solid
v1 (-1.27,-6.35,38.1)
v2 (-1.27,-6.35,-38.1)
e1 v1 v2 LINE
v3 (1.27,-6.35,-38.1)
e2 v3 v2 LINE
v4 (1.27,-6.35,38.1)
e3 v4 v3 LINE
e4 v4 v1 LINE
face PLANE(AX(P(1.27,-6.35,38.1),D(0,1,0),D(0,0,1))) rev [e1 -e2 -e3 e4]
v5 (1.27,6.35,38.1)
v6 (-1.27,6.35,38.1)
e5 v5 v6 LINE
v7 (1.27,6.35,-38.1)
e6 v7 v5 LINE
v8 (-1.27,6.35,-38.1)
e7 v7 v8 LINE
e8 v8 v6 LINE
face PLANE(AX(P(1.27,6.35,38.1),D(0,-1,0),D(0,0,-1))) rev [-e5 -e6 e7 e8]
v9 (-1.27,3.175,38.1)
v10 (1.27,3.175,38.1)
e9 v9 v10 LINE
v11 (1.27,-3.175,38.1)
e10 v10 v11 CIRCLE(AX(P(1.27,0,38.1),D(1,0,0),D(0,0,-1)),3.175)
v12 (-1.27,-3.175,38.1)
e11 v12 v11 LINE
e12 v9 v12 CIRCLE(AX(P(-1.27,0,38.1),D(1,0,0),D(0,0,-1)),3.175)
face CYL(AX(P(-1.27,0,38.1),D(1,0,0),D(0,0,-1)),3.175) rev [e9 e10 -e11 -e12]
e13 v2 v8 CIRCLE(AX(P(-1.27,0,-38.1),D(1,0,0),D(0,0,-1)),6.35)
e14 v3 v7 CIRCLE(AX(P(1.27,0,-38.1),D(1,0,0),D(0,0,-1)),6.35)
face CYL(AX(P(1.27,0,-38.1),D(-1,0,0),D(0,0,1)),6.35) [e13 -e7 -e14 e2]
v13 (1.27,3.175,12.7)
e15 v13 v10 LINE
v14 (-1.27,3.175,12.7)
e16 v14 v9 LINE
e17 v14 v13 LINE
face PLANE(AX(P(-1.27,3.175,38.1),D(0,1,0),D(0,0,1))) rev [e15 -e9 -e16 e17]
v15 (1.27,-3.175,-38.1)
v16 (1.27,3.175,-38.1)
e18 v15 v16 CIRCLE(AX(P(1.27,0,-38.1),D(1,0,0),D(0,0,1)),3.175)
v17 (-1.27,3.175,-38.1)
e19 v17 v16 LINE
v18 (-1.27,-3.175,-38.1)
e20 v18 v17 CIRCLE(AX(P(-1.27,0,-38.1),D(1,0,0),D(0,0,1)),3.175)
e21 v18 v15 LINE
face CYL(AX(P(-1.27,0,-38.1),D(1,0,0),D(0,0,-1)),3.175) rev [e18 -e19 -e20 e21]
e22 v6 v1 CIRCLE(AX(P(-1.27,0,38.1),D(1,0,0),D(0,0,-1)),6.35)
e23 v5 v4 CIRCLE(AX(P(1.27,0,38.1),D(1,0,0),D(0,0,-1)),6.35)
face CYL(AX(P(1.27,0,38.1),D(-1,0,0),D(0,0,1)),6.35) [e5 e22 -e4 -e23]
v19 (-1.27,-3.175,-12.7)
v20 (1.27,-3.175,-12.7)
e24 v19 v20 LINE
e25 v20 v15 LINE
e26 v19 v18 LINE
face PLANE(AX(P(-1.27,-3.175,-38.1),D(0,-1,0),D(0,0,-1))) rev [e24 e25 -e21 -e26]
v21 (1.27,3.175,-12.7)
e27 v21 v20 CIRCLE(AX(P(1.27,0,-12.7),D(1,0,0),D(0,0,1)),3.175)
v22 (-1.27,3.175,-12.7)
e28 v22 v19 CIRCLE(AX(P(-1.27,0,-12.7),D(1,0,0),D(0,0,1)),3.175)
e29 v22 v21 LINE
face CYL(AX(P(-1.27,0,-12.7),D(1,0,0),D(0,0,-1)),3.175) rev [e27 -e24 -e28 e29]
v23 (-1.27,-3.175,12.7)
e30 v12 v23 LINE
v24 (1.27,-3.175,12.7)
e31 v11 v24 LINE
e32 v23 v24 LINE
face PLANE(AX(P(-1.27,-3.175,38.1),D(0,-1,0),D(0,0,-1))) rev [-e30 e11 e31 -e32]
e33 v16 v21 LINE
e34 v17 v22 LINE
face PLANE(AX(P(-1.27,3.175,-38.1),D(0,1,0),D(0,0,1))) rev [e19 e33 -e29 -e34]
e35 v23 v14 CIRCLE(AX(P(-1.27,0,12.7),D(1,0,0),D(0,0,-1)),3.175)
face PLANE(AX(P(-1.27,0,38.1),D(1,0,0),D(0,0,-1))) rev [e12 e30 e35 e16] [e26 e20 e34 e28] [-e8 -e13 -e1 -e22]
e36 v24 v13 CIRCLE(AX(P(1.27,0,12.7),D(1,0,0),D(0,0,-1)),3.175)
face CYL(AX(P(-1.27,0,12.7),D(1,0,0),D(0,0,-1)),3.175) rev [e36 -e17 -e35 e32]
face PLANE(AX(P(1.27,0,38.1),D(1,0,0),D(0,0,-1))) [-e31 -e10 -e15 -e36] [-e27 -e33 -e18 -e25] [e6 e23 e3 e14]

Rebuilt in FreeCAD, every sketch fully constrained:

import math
import FreeCAD as App
import Part
import Sketcher
from FreeCAD import Vector
Q = App.Units.Quantity

doc = App.newDocument("Part")
params = doc.addObject("Spreadsheet::Sheet", "Params")
for row, (alias, value) in enumerate([
    ("sketch1_height", "3 in"),
    ("sketch1_radius", "0.25 in"),
    ("pad1_length", "0.1 in"),
    ("sketch2_height", "1 in"),
    ("sketch2_radius", "0.125 in"),
], start=1):
    params.set(f"A{row}", alias)
    params.set(f"B{row}", "=" + value)
    params.setAlias(f"B{row}", alias)

body = doc.addObject("PartDesign::Body", "Body")

# Sketch on YZ plane
sketch1 = body.newObject("Sketcher::SketchObject", "Sketch")
sketch1.AttachmentSupport = (doc.getObject("YZ_Plane"), [""])
sketch1.MapMode = "FlatFace"
sketch1.addGeometry(Part.LineSegment(Vector(6.35, -38.1, 0), Vector(6.35, 38.1, 0)), False)
sketch1.addGeometry(Part.ArcOfCircle(Part.Circle(Vector(0, 38.1, 0), Vector(0, 0, 1), 6.35), math.radians(0), math.radians(180)), False)
sketch1.addGeometry(Part.LineSegment(Vector(-6.35, 38.1, 0), Vector(-6.35, -38.1, 0)), False)
sketch1.addGeometry(Part.ArcOfCircle(Part.Circle(Vector(0, -38.1, 0), Vector(0, 0, 1), 6.35), math.radians(180), math.radians(360)), False)
sketch1.addConstraint(Sketcher.Constraint("Tangent", 0, 2, 1, 1))
sketch1.addConstraint(Sketcher.Constraint("Tangent", 1, 2, 2, 1))
sketch1.addConstraint(Sketcher.Constraint("Tangent", 2, 2, 3, 1))
sketch1.addConstraint(Sketcher.Constraint("Tangent", 3, 2, 0, 1))
sketch1.addConstraint(Sketcher.Constraint("Vertical", 0))
sketch1.addConstraint(Sketcher.Constraint("Vertical", 2))
sketch1.addConstraint(Sketcher.Constraint("Symmetric", 1, 3, 3, 3, -1, 1))
sketch1.addConstraint(Sketcher.Constraint("DistanceY", 0, 1, 0, 2, Q("3 in")))
sketch1.addConstraint(Sketcher.Constraint("Radius", 1, Q("0.25 in")))
sketch1.setExpression("Constraints[7]", "Params.sketch1_height")
sketch1.setExpression("Constraints[8]", "Params.sketch1_radius")
pad1 = body.newObject("PartDesign::Pad", "Pad")
pad1.Profile = sketch1
pad1.setExpression("Length", "Params.pad1_length")
pad1.Midplane = True

# Sketch on YZ plane
sketch2 = body.newObject("Sketcher::SketchObject", "Sketch001")
sketch2.AttachmentSupport = (doc.getObject("YZ_Plane"), [""])
sketch2.MapMode = "FlatFace"
sketch2.AttachmentOffset = App.Placement(Vector(0, 0, 0.05 * 25.4), App.Rotation())
sketch2.addGeometry(Part.LineSegment(Vector(3.175, 12.7, 0), Vector(3.175, 38.1, 0)), False)
sketch2.addGeometry(Part.ArcOfCircle(Part.Circle(Vector(0, 38.1, 0), Vector(0, 0, 1), 3.175), math.radians(0), math.radians(180)), False)
sketch2.addGeometry(Part.LineSegment(Vector(-3.175, 38.1, 0), Vector(-3.175, 12.7, 0)), False)
sketch2.addGeometry(Part.ArcOfCircle(Part.Circle(Vector(0, 12.7, 0), Vector(0, 0, 1), 3.175), math.radians(180), math.radians(360)), False)
sketch2.addGeometry(Part.LineSegment(Vector(3.175, -38.1, 0), Vector(3.175, -12.7, 0)), False)
sketch2.addGeometry(Part.ArcOfCircle(Part.Circle(Vector(0, -12.7, 0), Vector(0, 0, 1), 3.175), math.radians(0), math.radians(180)), False)
sketch2.addGeometry(Part.LineSegment(Vector(-3.175, -12.7, 0), Vector(-3.175, -38.1, 0)), False)
sketch2.addGeometry(Part.ArcOfCircle(Part.Circle(Vector(0, -38.1, 0), Vector(0, 0, 1), 3.175), math.radians(180), math.radians(360)), False)
sketch2.addConstraint(Sketcher.Constraint("Tangent", 0, 2, 1, 1))
sketch2.addConstraint(Sketcher.Constraint("Tangent", 1, 2, 2, 1))
sketch2.addConstraint(Sketcher.Constraint("Tangent", 2, 2, 3, 1))
sketch2.addConstraint(Sketcher.Constraint("Tangent", 3, 2, 0, 1))
sketch2.addConstraint(Sketcher.Constraint("Tangent", 4, 2, 5, 1))
sketch2.addConstraint(Sketcher.Constraint("Tangent", 5, 2, 6, 1))
sketch2.addConstraint(Sketcher.Constraint("Tangent", 6, 2, 7, 1))
sketch2.addConstraint(Sketcher.Constraint("Tangent", 7, 2, 4, 1))
sketch2.addConstraint(Sketcher.Constraint("Vertical", 0))
sketch2.addConstraint(Sketcher.Constraint("Vertical", 2))
sketch2.addConstraint(Sketcher.Constraint("Vertical", 4))
sketch2.addConstraint(Sketcher.Constraint("Vertical", 6))
sketch2.addConstraint(Sketcher.Constraint("Equal", 3, 5))
sketch2.addConstraint(Sketcher.Constraint("Symmetric", 3, 3, 5, 3, -1, 1))
sketch2.addConstraint(Sketcher.Constraint("Symmetric", 1, 3, 7, 3, -1))
sketch2.addConstraint(Sketcher.Constraint("DistanceY", 0, 1, 0, 2, Q("1 in")))
sketch2.addConstraint(Sketcher.Constraint("Radius", 1, Q("0.125 in")))
sketch2.addConstraint(Sketcher.Constraint("DistanceY", 5, 3, 3, 3, Q("1 in")))
sketch2.setExpression("Constraints[15]", "Params.sketch2_height")
sketch2.setExpression("Constraints[16]", "Params.sketch2_radius")
pocket1 = body.newObject("PartDesign::Pocket", "Pocket")
pocket1.Profile = sketch2
pocket1.Type = "ThroughAll"

doc.recompute()
